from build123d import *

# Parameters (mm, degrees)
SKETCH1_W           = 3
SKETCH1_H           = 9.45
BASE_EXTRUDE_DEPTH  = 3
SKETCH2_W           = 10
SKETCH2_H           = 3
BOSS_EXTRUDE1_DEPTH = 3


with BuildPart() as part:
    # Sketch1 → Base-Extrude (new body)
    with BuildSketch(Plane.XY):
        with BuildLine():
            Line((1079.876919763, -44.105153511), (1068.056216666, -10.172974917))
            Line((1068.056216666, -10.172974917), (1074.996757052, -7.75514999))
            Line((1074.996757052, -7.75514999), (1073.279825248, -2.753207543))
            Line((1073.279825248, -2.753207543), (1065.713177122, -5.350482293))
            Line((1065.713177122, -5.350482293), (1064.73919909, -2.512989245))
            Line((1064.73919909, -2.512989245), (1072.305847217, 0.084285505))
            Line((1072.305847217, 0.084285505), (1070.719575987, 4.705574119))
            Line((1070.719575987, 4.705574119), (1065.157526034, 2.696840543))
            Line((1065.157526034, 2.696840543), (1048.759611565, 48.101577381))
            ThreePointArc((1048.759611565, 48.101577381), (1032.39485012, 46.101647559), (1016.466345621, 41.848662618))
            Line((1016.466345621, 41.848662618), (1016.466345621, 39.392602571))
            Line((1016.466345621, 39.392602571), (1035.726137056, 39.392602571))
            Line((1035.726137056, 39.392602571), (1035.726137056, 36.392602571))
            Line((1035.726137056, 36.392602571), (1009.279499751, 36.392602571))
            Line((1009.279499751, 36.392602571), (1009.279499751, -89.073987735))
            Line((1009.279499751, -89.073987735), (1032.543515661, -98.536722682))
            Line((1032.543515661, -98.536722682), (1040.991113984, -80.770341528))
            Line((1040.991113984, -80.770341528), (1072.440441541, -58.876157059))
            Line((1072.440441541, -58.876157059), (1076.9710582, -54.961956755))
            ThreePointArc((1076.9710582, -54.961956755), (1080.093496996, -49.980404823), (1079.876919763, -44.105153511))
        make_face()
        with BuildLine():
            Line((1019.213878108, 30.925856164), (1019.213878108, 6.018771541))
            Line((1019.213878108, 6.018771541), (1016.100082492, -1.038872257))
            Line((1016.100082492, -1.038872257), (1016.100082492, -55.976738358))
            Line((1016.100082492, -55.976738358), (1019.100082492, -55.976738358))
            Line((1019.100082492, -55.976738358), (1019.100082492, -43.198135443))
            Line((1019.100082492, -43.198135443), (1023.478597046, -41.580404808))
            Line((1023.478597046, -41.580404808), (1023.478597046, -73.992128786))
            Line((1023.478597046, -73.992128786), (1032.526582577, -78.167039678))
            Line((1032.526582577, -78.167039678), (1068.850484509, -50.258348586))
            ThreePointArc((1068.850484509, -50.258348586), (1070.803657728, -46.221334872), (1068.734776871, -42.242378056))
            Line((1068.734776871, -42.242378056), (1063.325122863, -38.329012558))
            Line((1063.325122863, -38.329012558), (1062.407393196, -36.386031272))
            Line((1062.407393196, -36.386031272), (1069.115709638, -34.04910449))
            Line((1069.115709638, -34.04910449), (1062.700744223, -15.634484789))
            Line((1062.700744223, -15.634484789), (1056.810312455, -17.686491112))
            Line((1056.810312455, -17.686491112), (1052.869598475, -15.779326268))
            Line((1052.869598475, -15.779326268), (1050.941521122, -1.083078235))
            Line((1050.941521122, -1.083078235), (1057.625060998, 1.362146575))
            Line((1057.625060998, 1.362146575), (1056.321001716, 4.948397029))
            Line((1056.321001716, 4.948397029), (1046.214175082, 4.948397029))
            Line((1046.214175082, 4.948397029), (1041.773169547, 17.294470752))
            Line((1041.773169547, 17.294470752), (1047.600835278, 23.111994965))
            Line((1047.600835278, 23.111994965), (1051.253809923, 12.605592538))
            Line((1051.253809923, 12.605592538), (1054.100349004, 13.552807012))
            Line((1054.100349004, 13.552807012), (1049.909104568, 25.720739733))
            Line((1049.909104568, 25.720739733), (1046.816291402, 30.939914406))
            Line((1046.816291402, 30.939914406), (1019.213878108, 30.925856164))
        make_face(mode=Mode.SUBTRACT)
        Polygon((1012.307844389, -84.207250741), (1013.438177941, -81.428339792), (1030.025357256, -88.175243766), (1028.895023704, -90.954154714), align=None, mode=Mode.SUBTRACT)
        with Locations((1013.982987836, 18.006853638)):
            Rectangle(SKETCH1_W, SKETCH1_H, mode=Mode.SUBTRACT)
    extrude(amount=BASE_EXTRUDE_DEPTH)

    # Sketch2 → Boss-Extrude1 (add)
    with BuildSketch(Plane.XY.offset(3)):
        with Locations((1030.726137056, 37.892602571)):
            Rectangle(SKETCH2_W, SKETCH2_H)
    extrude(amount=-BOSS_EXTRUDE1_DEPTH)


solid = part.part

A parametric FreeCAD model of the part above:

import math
import FreeCAD as App
import Part
import Sketcher

V = App.Vector


def add_polygon(sketch, points):
    """Adds a closed chain of lines whose ends are joined by coincident constraints."""
    first, n = sketch.GeometryCount, len(points)
    for a, b in zip(points, points[1:] + points[:1]):
        sketch.addGeometry(Part.LineSegment(App.Vector(*a, 0), App.Vector(*b, 0)), False)
    for i in range(n):
        sketch.addConstraint(Sketcher.Constraint("Coincident", first + i, 2, first + (i + 1) % n, 1))

doc = App.newDocument("Part")
body = doc.addObject("PartDesign::Body", "Body")

# Sketch on XY plane
sketch1 = body.newObject("Sketcher::SketchObject", "Sketch")
sketch1.AttachmentSupport = (doc.getObject("XY_Plane"), [""])
sketch1.MapMode = "FlatFace"
sketch1.addGeometry(Part.LineSegment(V(1079.87692, -44.105154, 0), V(1068.056217, -10.172975, 0)), False)  # 0
sketch1.addGeometry(Part.LineSegment(V(1068.056217, -10.172975, 0), V(1074.996757, -7.75515, 0)), False)  # 1
sketch1.addGeometry(Part.LineSegment(V(1074.996757, -7.75515, 0), V(1073.279825, -2.753208, 0)), False)  # 2
sketch1.addGeometry(Part.LineSegment(V(1073.279825, -2.753208, 0), V(1065.713177, -5.350482, 0)), False)  # 3
sketch1.addGeometry(Part.LineSegment(V(1065.713177, -5.350482, 0), V(1064.739199, -2.512989, 0)), False)  # 4
sketch1.addGeometry(Part.LineSegment(V(1064.739199, -2.512989, 0), V(1072.305847, 0.084286, 0)), False)  # 5
sketch1.addGeometry(Part.LineSegment(V(1072.305847, 0.084286, 0), V(1070.719576, 4.705574, 0)), False)  # 6
sketch1.addGeometry(Part.LineSegment(V(1070.719576, 4.705574, 0), V(1065.157526, 2.696841, 0)), False)  # 7
sketch1.addGeometry(Part.LineSegment(V(1065.157526, 2.696841, 0), V(1048.759612, 48.101577, 0)), False)  # 8
sketch1.addGeometry(Part.ArcOfCircle(Part.Circle(V(1054.909829, -70.177275, 0), V(0, 0, 1), 118.438642), math.radians(92.976563), math.radians(108.940473)), False)  # 9
sketch1.addGeometry(Part.LineSegment(V(1016.466346, 41.848663, 0), V(1016.466346, 39.392603, 0)), False)  # 10
sketch1.addGeometry(Part.LineSegment(V(1016.466346, 39.392603, 0), V(1035.726137, 39.392603, 0)), False)  # 11
sketch1.addGeometry(Part.LineSegment(V(1035.726137, 39.392603, 0), V(1035.726137, 36.392603, 0)), False)  # 12
sketch1.addGeometry(Part.LineSegment(V(1035.726137, 36.392603, 0), V(1009.2795, 36.392603, 0)), False)  # 13
sketch1.addGeometry(Part.LineSegment(V(1009.2795, 36.392603, 0), V(1009.2795, -89.073988, 0)), False)  # 14
sketch1.addGeometry(Part.LineSegment(V(1009.2795, -89.073988, 0), V(1032.543516, -98.536723, 0)), False)  # 15
sketch1.addGeometry(Part.LineSegment(V(1032.543516, -98.536723, 0), V(1040.991114, -80.770342, 0)), False)  # 16
sketch1.addGeometry(Part.LineSegment(V(1040.991114, -80.770342, 0), V(1072.440442, -58.876157, 0)), False)  # 17
sketch1.addGeometry(Part.LineSegment(V(1072.440442, -58.876157, 0), V(1076.971058, -54.961957, 0)), False)  # 18
sketch1.addGeometry(Part.ArcOfCircle(Part.Circle(V(1070.433525, -47.394879, 0), V(0, 0, 1), 10), math.radians(-49.174813), math.radians(19.206427)), False)  # 19
add_polygon(sketch1, [(1028.895024, -90.954155), (1012.307844, -84.207251), (1013.438178, -81.42834), (1030.025357, -88.175244)])  # lines 20-23
add_polygon(sketch1, [(1015.482988, 13.281854), (1012.482988, 13.281854), (1012.482988, 22.731854), (1015.482988, 22.731854)])  # lines 24-27
sketch1.addGeometry(Part.LineSegment(V(1019.213878, 6.018772, 0), V(1019.213878, 30.925856, 0)), False)  # 28
sketch1.addGeometry(Part.LineSegment(V(1019.213878, 30.925856, 0), V(1046.816291, 30.939914, 0)), False)  # 29
sketch1.addGeometry(Part.LineSegment(V(1046.816291, 30.939914, 0), V(1049.909105, 25.72074, 0)), False)  # 30
sketch1.addGeometry(Part.LineSegment(V(1049.909105, 25.72074, 0), V(1054.100349, 13.552807, 0)), False)  # 31
sketch1.addGeometry(Part.LineSegment(V(1054.100349, 13.552807, 0), V(1051.25381, 12.605593, 0)), False)  # 32
sketch1.addGeometry(Part.LineSegment(V(1051.25381, 12.605593, 0), V(1047.600835, 23.111995, 0)), False)  # 33
sketch1.addGeometry(Part.LineSegment(V(1047.600835, 23.111995, 0), V(1041.77317, 17.294471, 0)), False)  # 34
sketch1.addGeometry(Part.LineSegment(V(1041.77317, 17.294471, 0), V(1046.214175, 4.948397, 0)), False)  # 35
sketch1.addGeometry(Part.LineSegment(V(1046.214175, 4.948397, 0), V(1056.321002, 4.948397, 0)), False)  # 36
sketch1.addGeometry(Part.LineSegment(V(1056.321002, 4.948397, 0), V(1057.625061, 1.362147, 0)), False)  # 37
sketch1.addGeometry(Part.LineSegment(V(1057.625061, 1.362147, 0), V(1050.941521, -1.083078, 0)), False)  # 38
sketch1.addGeometry(Part.LineSegment(V(1050.941521, -1.083078, 0), V(1052.869598, -15.779326, 0)), False)  # 39
sketch1.addGeometry(Part.LineSegment(V(1052.869598, -15.779326, 0), V(1056.810312, -17.686491, 0)), False)  # 40
sketch1.addGeometry(Part.LineSegment(V(1056.810312, -17.686491, 0), V(1062.700744, -15.634485, 0)), False)  # 41
sketch1.addGeometry(Part.LineSegment(V(1062.700744, -15.634485, 0), V(1069.11571, -34.049104, 0)), False)  # 42
sketch1.addGeometry(Part.LineSegment(V(1069.11571, -34.049104, 0), V(1062.407393, -36.386031, 0)), False)  # 43
sketch1.addGeometry(Part.LineSegment(V(1062.407393, -36.386031, 0), V(1063.325123, -38.329013, 0)), False)  # 44
sketch1.addGeometry(Part.LineSegment(V(1063.325123, -38.329013, 0), V(1068.734777, -42.242378, 0)), False)  # 45
sketch1.addGeometry(Part.ArcOfCircle(Part.Circle(V(1065.804179, -46.293501, 0), V(0, 0, 1), 5), math.radians(-52.463898), math.radians(54.117871)), False)  # 46
sketch1.addGeometry(Part.LineSegment(V(1068.850485, -50.258349, 0), V(1032.526583, -78.16704, 0)), False)  # 47
sketch1.addGeometry(Part.LineSegment(V(1032.526583, -78.16704, 0), V(1023.478597, -73.992129, 0)), False)  # 48
sketch1.addGeometry(Part.LineSegment(V(1023.478597, -73.992129, 0), V(1023.478597, -41.580405, 0)), False)  # 49
sketch1.addGeometry(Part.LineSegment(V(1023.478597, -41.580405, 0), V(1019.100082, -43.198135, 0)), False)  # 50
sketch1.addGeometry(Part.LineSegment(V(1019.100082, -43.198135, 0), V(1019.100082, -55.976738, 0)), False)  # 51
sketch1.addGeometry(Part.LineSegment(V(1019.100082, -55.976738, 0), V(1016.100082, -55.976738, 0)), False)  # 52
sketch1.addGeometry(Part.LineSegment(V(1016.100082, -55.976738, 0), V(1016.100082, -1.038872, 0)), False)  # 53
sketch1.addGeometry(Part.LineSegment(V(1016.100082, -1.038872, 0), V(1019.213878, 6.018772, 0)), False)  # 54
sketch1.addConstraint([
    Sketcher.Constraint("Coincident", 0, 2, 1, 1),
    Sketcher.Constraint("Coincident", 1, 2, 2, 1),
    Sketcher.Constraint("Coincident", 2, 2, 3, 1),
    Sketcher.Constraint("Coincident", 3, 2, 4, 1),
    Sketcher.Constraint("Coincident", 4, 2, 5, 1),
    Sketcher.Constraint("Coincident", 5, 2, 6, 1),
    Sketcher.Constraint("Coincident", 6, 2, 7, 1),
    Sketcher.Constraint("Coincident", 7, 2, 8, 1),
    Sketcher.Constraint("Coincident", 8, 2, 9, 1),
    Sketcher.Constraint("Coincident", 9, 2, 10, 1),
    Sketcher.Constraint("Coincident", 10, 2, 11, 1),
    Sketcher.Constraint("Coincident", 11, 2, 12, 1),
    Sketcher.Constraint("Coincident", 12, 2, 13, 1),
    Sketcher.Constraint("Coincident", 13, 2, 14, 1),
    Sketcher.Constraint("Coincident", 14, 2, 15, 1),
    Sketcher.Constraint("Coincident", 15, 2, 16, 1),
    Sketcher.Constraint("Coincident", 16, 2, 17, 1),
    Sketcher.Constraint("Coincident", 17, 2, 18, 1),
    Sketcher.Constraint("Coincident", 18, 2, 19, 1),
    Sketcher.Constraint("Coincident", 19, 2, 0, 1),
    Sketcher.Constraint("Coincident", 28, 2, 29, 1),
    Sketcher.Constraint("Coincident", 29, 2, 30, 1),
    Sketcher.Constraint("Coincident", 30, 2, 31, 1),
    Sketcher.Constraint("Coincident", 31, 2, 32, 1),
    Sketcher.Constraint("Coincident", 32, 2, 33, 1),
    Sketcher.Constraint("Coincident", 33, 2, 34, 1),
    Sketcher.Constraint("Coincident", 34, 2, 35, 1),
    Sketcher.Constraint("Coincident", 35, 2, 36, 1),
    Sketcher.Constraint("Coincident", 36, 2, 37, 1),
    Sketcher.Constraint("Coincident", 37, 2, 38, 1),
    Sketcher.Constraint("Coincident", 38, 2, 39, 1),
    Sketcher.Constraint("Coincident", 39, 2, 40, 1),
    Sketcher.Constraint("Coincident", 40, 2, 41, 1),
    Sketcher.Constraint("Coincident", 41, 2, 42, 1),
    Sketcher.Constraint("Coincident", 42, 2, 43, 1),
    Sketcher.Constraint("Coincident", 43, 2, 44, 1),
    Sketcher.Constraint("Coincident", 44, 2, 45, 1),
    Sketcher.Constraint("Coincident", 45, 2, 46, 2),
    Sketcher.Constraint("Coincident", 46, 1, 47, 1),
    Sketcher.Constraint("Coincident", 47, 2, 48, 1),
    Sketcher.Constraint("Coincident", 48, 2, 49, 1),
    Sketcher.Constraint("Coincident", 49, 2, 50, 1),
    Sketcher.Constraint("Coincident", 50, 2, 51, 1),
    Sketcher.Constraint("Coincident", 51, 2, 52, 1),
    Sketcher.Constraint("Coincident", 52, 2, 53, 1),
    Sketcher.Constraint("Coincident", 53, 2, 54, 1),
    Sketcher.Constraint("Coincident", 54, 2, 28, 1),
    Sketcher.Constraint("Vertical", 10),
    Sketcher.Constraint("Horizontal", 11),
    Sketcher.Constraint("Vertical", 12),
    Sketcher.Constraint("Horizontal", 13),
    Sketcher.Constraint("Vertical", 14),
    Sketcher.Constraint("Horizontal", 24),
    Sketcher.Constraint("Vertical", 25),
    Sketcher.Constraint("Horizontal", 26),
    Sketcher.Constraint("Vertical", 27),
    Sketcher.Constraint("Vertical", 28),
    Sketcher.Constraint("Horizontal", 36),
    Sketcher.Constraint("Vertical", 49),
    Sketcher.Constraint("Vertical", 51),
    Sketcher.Constraint("Horizontal", 52),
    Sketcher.Constraint("Vertical", 53),
    Sketcher.Constraint("Radius", 19, 10.0),
    Sketcher.Constraint("Radius", 46, 5.0),
    Sketcher.Constraint("DistanceX", 24, 2, 24, 1, 3.0),
    Sketcher.Constraint("DistanceX", 52, 2, 52, 1, 3.0),
    Sketcher.Constraint("DistanceY", 12, 2, 12, 1, 3.0),
    Sketcher.Constraint("Distance", 3, 8.0),
    Sketcher.Constraint("Distance", 4, 3.0),
    Sketcher.Constraint("Distance", 5, 8.0),
    Sketcher.Constraint("Distance", 21, 3.0),
    Sketcher.Constraint("Distance", 23, 3.0),
    Sketcher.Constraint("Distance", 32, 3.0),
    Sketcher.Constraint("Distance", 42, 19.5),
    Sketcher.Constraint("DistanceY", 25, 1, 25, 2, 9.45),
    Sketcher.Constraint("DistanceX", -1, 1, 36, 2, 1056.321002),
    Sketcher.Constraint("Radius", 9, 118.438642),
    Sketcher.Constraint("DistanceX", 3, 2, 46, 3, 0.091001),
    Sketcher.Constraint("DistanceY", 21, 2, 16, 2, 0.657998),
    Sketcher.Constraint("DistanceX", 49, 2, 39, 2, 29.391001),
    Sketcher.Constraint("Distance", 38, 7.116799),
    Sketcher.Constraint("DistanceX", 11, 1, 11, 2, 19.259791),
    Sketcher.Constraint("DistanceY", 10, 2, 10, 1, 2.45606),
    Sketcher.Constraint("DistanceY", 14, 2, 14, 1, 125.46659),
    Sketcher.Constraint("DistanceY", 46, 3, -1, 1, 46.293501),
    Sketcher.Constraint("DistanceX", -1, 1, 4, 2, 1064.739199),
    Sketcher.Constraint("DistanceX", -1, 1, 13, 2, 1009.2795),
    Sketcher.Constraint("DistanceX", -1, 1, 39, 2, 1052.869598),
    Sketcher.Constraint("DistanceY", 9, 3, 0, 2, 60.0043),
    Sketcher.Constraint("DistanceX", 19, 3, 2, 2, 2.8463),
    Sketcher.Constraint("DistanceX", 3, 2, 6, 2, 5.006399),
    Sketcher.Constraint("DistanceX", 7, 2, 2, 2, 8.122299),
    Sketcher.Constraint("DistanceX", 15, 2, 0, 2, 35.512701),
    Sketcher.Constraint("DistanceX", 15, 2, 16, 2, 8.447598),
    Sketcher.Constraint("DistanceY", 17, 2, 18, 2, 3.9142),
    Sketcher.Constraint("DistanceY", 7, 2, 30, 2, 23.023899),
    Sketcher.Constraint("DistanceX", 12, 2, 33, 2, 11.874698),
    Sketcher.Constraint("DistanceY", 40, 2, 4, 2, 15.173502),
    Sketcher.Constraint("DistanceX", 46, 3, 45, 2, 2.930598),
    Sketcher.Constraint("DistanceY", 19, 3, 45, 2, 5.152501),
    Sketcher.Constraint("DistanceY", 16, 2, 47, 2, 2.603302),
    Sketcher.Constraint("DistanceX", 50, 2, 47, 2, 13.4265),
    Sketcher.Constraint("DistanceY", 47, 2, 51, 2, 22.190301),
    Sketcher.Constraint("Distance", 2, 5.28841),
    Sketcher.Constraint("Distance", 15, 25.114892),
    Sketcher.Constraint("Distance", 17, 38.31991),
    Sketcher.Constraint("Distance", 20, 17.906849),
    Sketcher.Constraint("Distance", 22, 17.906849),
    Sketcher.Constraint("Distance", 33, 11.123341),
    Sketcher.Constraint("Distance", 35, 13.120521),
    Sketcher.Constraint("Distance", 41, 6.237621),
    Sketcher.Constraint("Distance", 50, 4.667809),
    Sketcher.Constraint("DistanceX", 13, 2, 13, 1, 26.446637),
    Sketcher.Constraint("DistanceX", 36, 1, 36, 2, 10.106827),
    Sketcher.Constraint("DistanceY", 28, 1, 28, 2, 24.907085),
    Sketcher.Constraint("DistanceY", 49, 1, 49, 2, 32.411724),
    Sketcher.Constraint("DistanceY", 51, 2, 51, 1, 12.778603),
    Sketcher.Constraint("DistanceY", 53, 1, 53, 2, 54.937866),
    Sketcher.Constraint("DistanceX", -1, 1, 9, 3, 1054.909829),
    Sketcher.Constraint("DistanceX", -1, 1, 46, 3, 1065.804179),
    Sketcher.Constraint("DistanceY", 1, 2, -1, 1, 7.75515),
    Sketcher.Constraint("DistanceY", 4, 2, -1, 1, 2.512989),
    Sketcher.Constraint("DistanceY", -1, 1, 7, 2, 2.696841),
    Sketcher.Constraint("DistanceX", -1, 1, 8, 2, 1048.759612),
    Sketcher.Constraint("DistanceY", 16, 2, -1, 1, 80.770342),
    Sketcher.Constraint("DistanceX", -1, 1, 17, 2, 1072.440442),
    Sketcher.Constraint("DistanceX", -1, 1, 18, 2, 1076.971058),
    Sketcher.Constraint("DistanceX", -1, 1, 19, 2, 1079.87692),
    Sketcher.Constraint("DistanceY", 20, 2, -1, 1, 84.207251),
    Sketcher.Constraint("DistanceX", -1, 1, 28, 2, 1019.213878),
    Sketcher.Constraint("DistanceX", -1, 1, 29, 2, 1046.816291),
    Sketcher.Constraint("DistanceX", -1, 1, 31, 2, 1054.100349),
    Sketcher.Constraint("DistanceX", -1, 1, 32, 2, 1051.25381),
    Sketcher.Constraint("DistanceX", -1, 1, 34, 2, 1041.77317),
    Sketcher.Constraint("DistanceY", -1, 1, 34, 2, 17.294471),
    Sketcher.Constraint("DistanceX", -1, 1, 37, 2, 1057.625061),
    Sketcher.Constraint("DistanceX", -1, 1, 38, 2, 1050.941521),
    Sketcher.Constraint("DistanceY", 38, 2, -1, 1, 1.083078),
    Sketcher.Constraint("DistanceX", -1, 1, 42, 2, 1069.11571),
    Sketcher.Constraint("DistanceY", 43, 2, -1, 1, 36.386031),
    Sketcher.Constraint("DistanceY", 46, 1, -1, 1, 50.258349),
    Sketcher.Constraint("DistanceY", 48, 2, -1, 1, 73.992129),
    Sketcher.Constraint("DistanceY", -1, 1, 54, 2, 6.018772),
    Sketcher.Constraint("DistanceX", 46, 3, 0, 2, 2.252038),
    Sketcher.Constraint("DistanceX", 5, 2, 2, 2, 0.973978),
    Sketcher.Constraint("DistanceY", 0, 2, 5, 2, 10.25726),
    Sketcher.Constraint("DistanceY", 5, 2, 6, 2, 4.621289),
    Sketcher.Constraint("DistanceX", 20, 2, 15, 2, 20.235671),
    Sketcher.Constraint("DistanceX", 22, 2, 15, 2, 2.518158),
    Sketcher.Constraint("DistanceX", 13, 2, 24, 2, 3.203488),
    Sketcher.Constraint("DistanceY", 24, 2, 13, 2, 23.110749),
    Sketcher.Constraint("DistanceY", 29, 2, 12, 2, 5.452688),
    Sketcher.Constraint("DistanceX", 30, 2, 7, 2, 15.248421),
    Sketcher.Constraint("DistanceY", 7, 2, 32, 2, 9.908752),
    Sketcher.Constraint("DistanceY", 39, 2, 38, 2, 14.696248),
    Sketcher.Constraint("DistanceX", 38, 2, 40, 2, 5.868791),
    Sketcher.Constraint("DistanceX", 40, 2, 41, 2, 5.890432),
    Sketcher.Constraint("DistanceX", 43, 2, 19, 3, 8.026132),
    Sketcher.Constraint("DistanceX", 43, 2, 44, 2, 0.91773),
    Sketcher.Constraint("DistanceY", 44, 2, 43, 2, 1.942981),
])
pad1 = body.newObject("PartDesign::Pad", "Pad")
pad1.Profile = sketch1
pad1.Length = 3

# Sketch on XY plane
sketch2 = body.newObject("Sketcher::SketchObject", "Sketch001")
sketch2.AttachmentSupport = (doc.getObject("XY_Plane"), [""])
sketch2.MapMode = "FlatFace"
sketch2.AttachmentOffset = App.Placement(V(0, 0, 3), App.Rotation())
add_polygon(sketch2, [(1025.7, 39.4), (1025.7, 36.4), (1035.7, 36.4), (1035.7, 39.4)])  # lines 0-3
sketch2.addConstraint([
    Sketcher.Constraint("Vertical", 0),
    Sketcher.Constraint("Horizontal", 1),
    Sketcher.Constraint("Vertical", 2),
    Sketcher.Constraint("Horizontal", 3),
    Sketcher.Constraint("DistanceX", 1, 1, 1, 2, 10.0),
    Sketcher.Constraint("DistanceY", 0, 2, 0, 1, 3.0),
    Sketcher.Constraint("DistanceX", -1, 1, 0, 2, 1025.726137),
    Sketcher.Constraint("DistanceY", -1, 1, 0, 2, 36.392603),
])
pad2 = body.newObject("PartDesign::Pad", "Pad001")
pad2.Profile = sketch2
pad2.Length = 3
pad2.Reversed = True

doc.recompute()
